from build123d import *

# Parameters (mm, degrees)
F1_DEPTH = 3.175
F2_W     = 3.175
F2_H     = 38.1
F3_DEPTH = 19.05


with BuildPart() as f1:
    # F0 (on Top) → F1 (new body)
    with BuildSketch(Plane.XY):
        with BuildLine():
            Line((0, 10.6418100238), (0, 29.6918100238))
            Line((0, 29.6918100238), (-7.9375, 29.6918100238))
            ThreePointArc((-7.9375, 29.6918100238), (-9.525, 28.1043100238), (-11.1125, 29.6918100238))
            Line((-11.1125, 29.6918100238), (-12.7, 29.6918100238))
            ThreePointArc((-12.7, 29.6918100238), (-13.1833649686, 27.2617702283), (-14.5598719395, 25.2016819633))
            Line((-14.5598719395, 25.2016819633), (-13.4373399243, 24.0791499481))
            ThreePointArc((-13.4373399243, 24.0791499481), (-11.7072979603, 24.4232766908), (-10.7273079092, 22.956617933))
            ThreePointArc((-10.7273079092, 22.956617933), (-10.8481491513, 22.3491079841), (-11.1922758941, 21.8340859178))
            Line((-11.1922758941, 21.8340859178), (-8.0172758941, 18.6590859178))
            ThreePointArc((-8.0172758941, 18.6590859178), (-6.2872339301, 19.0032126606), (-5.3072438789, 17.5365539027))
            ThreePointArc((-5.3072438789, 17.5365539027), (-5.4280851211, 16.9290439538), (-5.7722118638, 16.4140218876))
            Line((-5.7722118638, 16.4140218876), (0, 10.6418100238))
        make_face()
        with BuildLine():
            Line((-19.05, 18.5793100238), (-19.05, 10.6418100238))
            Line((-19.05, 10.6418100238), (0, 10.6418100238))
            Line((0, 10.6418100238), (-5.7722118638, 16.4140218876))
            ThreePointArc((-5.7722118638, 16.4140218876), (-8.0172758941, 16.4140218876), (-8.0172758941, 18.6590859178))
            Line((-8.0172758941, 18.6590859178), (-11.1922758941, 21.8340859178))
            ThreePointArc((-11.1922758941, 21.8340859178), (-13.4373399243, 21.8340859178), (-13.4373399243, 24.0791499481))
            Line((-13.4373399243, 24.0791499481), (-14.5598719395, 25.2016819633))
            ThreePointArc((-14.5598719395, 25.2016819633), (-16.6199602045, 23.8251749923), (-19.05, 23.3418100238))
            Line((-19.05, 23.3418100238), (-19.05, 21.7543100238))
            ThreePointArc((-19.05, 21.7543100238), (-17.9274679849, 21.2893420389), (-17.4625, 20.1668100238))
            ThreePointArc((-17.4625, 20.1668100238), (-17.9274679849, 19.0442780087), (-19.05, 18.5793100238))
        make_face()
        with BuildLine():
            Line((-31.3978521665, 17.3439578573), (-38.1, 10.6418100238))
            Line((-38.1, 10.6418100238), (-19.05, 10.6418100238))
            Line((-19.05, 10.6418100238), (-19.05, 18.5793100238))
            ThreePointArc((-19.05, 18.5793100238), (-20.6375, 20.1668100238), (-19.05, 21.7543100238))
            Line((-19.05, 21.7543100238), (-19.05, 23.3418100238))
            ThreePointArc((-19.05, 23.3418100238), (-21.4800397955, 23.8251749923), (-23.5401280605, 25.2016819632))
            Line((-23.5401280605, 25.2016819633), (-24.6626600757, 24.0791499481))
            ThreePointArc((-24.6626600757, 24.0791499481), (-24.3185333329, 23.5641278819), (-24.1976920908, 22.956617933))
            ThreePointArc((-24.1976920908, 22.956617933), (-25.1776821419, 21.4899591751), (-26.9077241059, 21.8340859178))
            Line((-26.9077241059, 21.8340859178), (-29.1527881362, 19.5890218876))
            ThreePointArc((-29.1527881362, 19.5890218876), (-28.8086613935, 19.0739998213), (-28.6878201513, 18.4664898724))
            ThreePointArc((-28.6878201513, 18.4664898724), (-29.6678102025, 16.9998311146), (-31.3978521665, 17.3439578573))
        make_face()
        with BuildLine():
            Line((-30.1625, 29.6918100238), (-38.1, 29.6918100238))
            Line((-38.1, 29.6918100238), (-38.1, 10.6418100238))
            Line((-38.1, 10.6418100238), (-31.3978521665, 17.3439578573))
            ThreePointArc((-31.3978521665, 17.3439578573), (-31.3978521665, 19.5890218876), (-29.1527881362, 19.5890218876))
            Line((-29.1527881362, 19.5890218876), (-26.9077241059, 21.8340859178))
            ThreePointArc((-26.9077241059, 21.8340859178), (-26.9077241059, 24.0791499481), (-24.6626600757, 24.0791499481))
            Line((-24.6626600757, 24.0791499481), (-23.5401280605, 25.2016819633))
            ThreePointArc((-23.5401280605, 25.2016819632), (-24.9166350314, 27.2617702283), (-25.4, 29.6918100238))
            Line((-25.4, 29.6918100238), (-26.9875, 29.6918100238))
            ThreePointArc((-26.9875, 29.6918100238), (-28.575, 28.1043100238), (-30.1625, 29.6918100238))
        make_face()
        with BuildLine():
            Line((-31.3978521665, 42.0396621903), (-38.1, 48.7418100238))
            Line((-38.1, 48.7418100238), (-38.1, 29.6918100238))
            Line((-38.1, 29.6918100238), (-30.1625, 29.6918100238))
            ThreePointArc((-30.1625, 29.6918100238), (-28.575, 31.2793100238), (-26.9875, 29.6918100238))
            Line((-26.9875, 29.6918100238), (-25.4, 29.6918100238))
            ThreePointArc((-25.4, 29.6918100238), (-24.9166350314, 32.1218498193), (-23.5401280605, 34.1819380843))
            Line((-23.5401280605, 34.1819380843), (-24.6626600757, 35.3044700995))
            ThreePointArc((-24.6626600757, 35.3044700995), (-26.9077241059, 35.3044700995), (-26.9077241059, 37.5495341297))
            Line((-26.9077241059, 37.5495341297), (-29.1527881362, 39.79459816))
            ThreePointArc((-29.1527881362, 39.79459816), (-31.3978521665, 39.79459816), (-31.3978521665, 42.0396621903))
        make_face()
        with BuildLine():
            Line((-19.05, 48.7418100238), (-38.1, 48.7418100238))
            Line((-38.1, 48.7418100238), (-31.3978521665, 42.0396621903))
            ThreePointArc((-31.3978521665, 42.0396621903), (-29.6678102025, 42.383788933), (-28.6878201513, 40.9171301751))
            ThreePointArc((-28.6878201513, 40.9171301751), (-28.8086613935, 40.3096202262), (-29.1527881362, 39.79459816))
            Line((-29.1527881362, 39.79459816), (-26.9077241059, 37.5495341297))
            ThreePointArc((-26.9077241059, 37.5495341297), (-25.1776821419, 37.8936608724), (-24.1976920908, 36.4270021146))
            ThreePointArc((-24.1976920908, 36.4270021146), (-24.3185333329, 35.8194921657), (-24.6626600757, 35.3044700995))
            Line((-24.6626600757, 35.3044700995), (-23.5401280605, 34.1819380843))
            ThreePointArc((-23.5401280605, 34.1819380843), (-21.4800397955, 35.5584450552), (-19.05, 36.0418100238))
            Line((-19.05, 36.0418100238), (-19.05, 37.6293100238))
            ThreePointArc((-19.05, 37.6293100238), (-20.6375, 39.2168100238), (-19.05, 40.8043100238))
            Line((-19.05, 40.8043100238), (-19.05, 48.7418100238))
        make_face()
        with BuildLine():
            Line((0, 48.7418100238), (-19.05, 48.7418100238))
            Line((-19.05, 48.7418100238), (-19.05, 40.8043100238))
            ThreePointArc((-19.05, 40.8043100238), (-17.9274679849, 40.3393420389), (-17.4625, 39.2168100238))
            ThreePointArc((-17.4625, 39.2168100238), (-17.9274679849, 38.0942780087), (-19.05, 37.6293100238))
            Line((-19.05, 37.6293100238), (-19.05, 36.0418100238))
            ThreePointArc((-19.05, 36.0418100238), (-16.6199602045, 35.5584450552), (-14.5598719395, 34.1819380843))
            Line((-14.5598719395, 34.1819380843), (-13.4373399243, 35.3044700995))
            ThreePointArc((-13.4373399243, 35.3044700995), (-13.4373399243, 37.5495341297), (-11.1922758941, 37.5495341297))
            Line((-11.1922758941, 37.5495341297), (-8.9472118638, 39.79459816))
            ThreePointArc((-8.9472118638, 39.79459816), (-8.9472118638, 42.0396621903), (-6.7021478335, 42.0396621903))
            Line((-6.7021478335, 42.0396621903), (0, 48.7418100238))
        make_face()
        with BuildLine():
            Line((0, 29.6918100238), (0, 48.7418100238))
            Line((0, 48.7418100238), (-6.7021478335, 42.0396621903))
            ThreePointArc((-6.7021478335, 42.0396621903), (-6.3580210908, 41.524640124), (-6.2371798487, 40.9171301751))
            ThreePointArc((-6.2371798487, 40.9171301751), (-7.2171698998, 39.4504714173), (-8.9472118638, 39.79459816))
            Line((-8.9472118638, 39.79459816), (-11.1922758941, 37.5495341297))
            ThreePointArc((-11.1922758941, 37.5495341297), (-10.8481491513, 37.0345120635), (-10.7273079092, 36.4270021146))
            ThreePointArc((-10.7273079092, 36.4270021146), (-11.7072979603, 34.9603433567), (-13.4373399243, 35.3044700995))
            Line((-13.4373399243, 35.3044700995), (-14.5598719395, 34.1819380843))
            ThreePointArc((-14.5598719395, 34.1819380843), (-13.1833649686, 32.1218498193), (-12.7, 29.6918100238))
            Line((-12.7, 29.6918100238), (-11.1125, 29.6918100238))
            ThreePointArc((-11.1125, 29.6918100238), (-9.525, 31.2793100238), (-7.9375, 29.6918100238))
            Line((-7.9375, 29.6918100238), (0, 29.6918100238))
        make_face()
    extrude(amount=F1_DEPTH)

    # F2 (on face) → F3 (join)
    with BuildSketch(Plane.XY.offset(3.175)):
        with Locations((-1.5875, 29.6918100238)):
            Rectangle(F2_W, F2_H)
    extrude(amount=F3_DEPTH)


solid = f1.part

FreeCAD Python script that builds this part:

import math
import FreeCAD as App
import Part
import Sketcher

V = App.Vector
Q = App.Units.Quantity


def add_polygon(sketch, points):
    """Adds a closed chain of lines whose ends are joined by coincident constraints."""
    first, n = sketch.GeometryCount, len(points)
    for a, b in zip(points, points[1:] + points[:1]):
        sketch.addGeometry(Part.LineSegment(App.Vector(*a, 0), App.Vector(*b, 0)), False)
    for i in range(n):
        sketch.addConstraint(Sketcher.Constraint("Coincident", first + i, 2, first + (i + 1) % n, 1))

doc = App.newDocument("Part")
params = doc.addObject("Spreadsheet::Sheet", "Params")
for row, (alias, value) in enumerate([
    ("sketch1_radius", "0.25 in"),
    ("sketch1_diameter", "0.125 in"),
    ("sketch1_width", "1.5 in"),
    ("pad1_length", "0.125 in"),
    ("sketch2_height", "1.5 in"),
    ("sketch2_width", "0.125 in"),
    ("pad2_length", "0.75 in"),
], start=1):
    params.set(f"A{row}", alias)
    params.set(f"B{row}", "=" + value)
    params.setAlias(f"B{row}", alias)

body = doc.addObject("PartDesign::Body", "Body")

# Sketch on XY plane
sketch1 = body.newObject("Sketcher::SketchObject", "Sketch")
sketch1.AttachmentSupport = (doc.getObject("XY_Plane"), [""])
sketch1.MapMode = "FlatFace"
add_polygon(sketch1, [(0, 10.64181), (0, 48.74181), (-38.1, 48.74181), (-38.1, 10.64181)])  # lines 0-3
sketch1.addGeometry(Part.Circle(V(-9.525, 29.69181, 0), V(0, 0, 1), 1.5875), False)  # 4
sketch1.addGeometry(Part.ArcOfCircle(Part.Circle(V(-19.05, 29.69181, 0), V(0, 0, 1), 6.35), math.radians(-45), math.radians(0)), False)  # 5
sketch1.addGeometry(Part.ArcOfCircle(Part.Circle(V(-19.05, 29.69181, 0), V(0, 0, 1), 6.35), math.radians(-90), math.radians(-45)), False)  # 6
sketch1.addGeometry(Part.ArcOfCircle(Part.Circle(V(-19.05, 29.69181, 0), V(0, 0, 1), 6.35), math.radians(-135), math.radians(-90)), False)  # 7
sketch1.addGeometry(Part.ArcOfCircle(Part.Circle(V(-19.05, 29.69181, 0), V(0, 0, 1), 6.35), math.radians(180), math.radians(225)), False)  # 8
sketch1.addGeometry(Part.ArcOfCircle(Part.Circle(V(-19.05, 29.69181, 0), V(0, 0, 1), 6.35), math.radians(135), math.radians(180)), False)  # 9
sketch1.addGeometry(Part.ArcOfCircle(Part.Circle(V(-19.05, 29.69181, 0), V(0, 0, 1), 6.35), math.radians(90), math.radians(135)), False)  # 10
sketch1.addGeometry(Part.ArcOfCircle(Part.Circle(V(-19.05, 29.69181, 0), V(0, 0, 1), 6.35), math.radians(45), math.radians(90)), False)  # 11
sketch1.addGeometry(Part.ArcOfCircle(Part.Circle(V(-19.05, 29.69181, 0), V(0, 0, 1), 6.35), math.radians(0), math.radians(45)), False)  # 12
sketch1.addGeometry(Part.ArcOfCircle(Part.Circle(V(-12.314808, 36.427002, 0), V(0, 0, 1), 1.5875), math.radians(45), math.radians(225)), False)  # 13
sketch1.addGeometry(Part.ArcOfCircle(Part.Circle(V(-12.314808, 36.427002, 0), V(0, 0, 1), 1.5875), math.radians(0), math.radians(45)), False)  # 14
sketch1.addGeometry(Part.ArcOfCircle(Part.Circle(V(-12.314808, 36.427002, 0), V(0, 0, 1), 1.5875), math.radians(-135), math.radians(0)), False)  # 15
sketch1.addGeometry(Part.ArcOfCircle(Part.Circle(V(-7.82468, 40.91713, 0), V(0, 0, 1), 1.5875), math.radians(45), math.radians(225)), False)  # 16
sketch1.addGeometry(Part.ArcOfCircle(Part.Circle(V(-7.82468, 40.91713, 0), V(0, 0, 1), 1.5875), math.radians(0), math.radians(45)), False)  # 17
sketch1.addGeometry(Part.ArcOfCircle(Part.Circle(V(-7.82468, 40.91713, 0), V(0, 0, 1), 1.5875), math.radians(-135), math.radians(0)), False)  # 18
sketch1.addGeometry(Part.ArcOfCircle(Part.Circle(V(-19.05, 39.21681, 0), V(0, 0, 1), 1.5875), math.radians(90), math.radians(270)), False)  # 19
sketch1.addGeometry(Part.ArcOfCircle(Part.Circle(V(-19.05, 39.21681, 0), V(0, 0, 1), 1.5875), math.radians(0), math.radians(90)), False)  # 20
sketch1.addGeometry(Part.ArcOfCircle(Part.Circle(V(-19.05, 39.21681, 0), V(0, 0, 1), 1.5875), math.radians(-90), math.radians(0)), False)  # 21
sketch1.addGeometry(Part.ArcOfCircle(Part.Circle(V(-25.785192, 36.427002, 0), V(0, 0, 1), 1.5875), math.radians(135), math.radians(315)), False)  # 22
sketch1.addGeometry(Part.ArcOfCircle(Part.Circle(V(-25.785192, 36.427002, 0), V(0, 0, 1), 1.5875), math.radians(0), math.radians(135)), False)  # 23
sketch1.addGeometry(Part.ArcOfCircle(Part.Circle(V(-25.785192, 36.427002, 0), V(0, 0, 1), 1.5875), math.radians(-45), math.radians(0)), False)  # 24
sketch1.addGeometry(Part.ArcOfCircle(Part.Circle(V(-30.27532, 40.91713, 0), V(0, 0, 1), 1.5875), math.radians(135), math.radians(315)), False)  # 25
sketch1.addGeometry(Part.ArcOfCircle(Part.Circle(V(-30.27532, 40.91713, 0), V(0, 0, 1), 1.5875), math.radians(0), math.radians(135)), False)  # 26
sketch1.addGeometry(Part.ArcOfCircle(Part.Circle(V(-30.27532, 40.91713, 0), V(0, 0, 1), 1.5875), math.radians(-45), math.radians(0)), False)  # 27
sketch1.addGeometry(Part.Circle(V(-28.575, 29.69181, 0), V(0, 0, 1), 1.5875), False)  # 28
sketch1.addGeometry(Part.ArcOfCircle(Part.Circle(V(-25.785192, 22.956618, 0), V(0, 0, 1), 1.5875), math.radians(0), math.radians(45)), False)  # 29
sketch1.addGeometry(Part.ArcOfCircle(Part.Circle(V(-25.785192, 22.956618, 0), V(0, 0, 1), 1.5875), math.radians(-135), math.radians(0)), False)  # 30
sketch1.addGeometry(Part.ArcOfCircle(Part.Circle(V(-25.785192, 22.956618, 0), V(0, 0, 1), 1.5875), math.radians(45), math.radians(225)), False)  # 31
sketch1.addGeometry(Part.ArcOfCircle(Part.Circle(V(-30.27532, 18.46649, 0), V(0, 0, 1), 1.5875), math.radians(0), math.radians(45)), False)  # 32
sketch1.addGeometry(Part.ArcOfCircle(Part.Circle(V(-30.27532, 18.46649, 0), V(0, 0, 1), 1.5875), math.radians(-135), math.radians(0)), False)  # 33
sketch1.addGeometry(Part.ArcOfCircle(Part.Circle(V(-30.27532, 18.46649, 0), V(0, 0, 1), 1.5875), math.radians(45), math.radians(225)), False)  # 34
sketch1.addGeometry(Part.ArcOfCircle(Part.Circle(V(-19.05, 20.16681, 0), V(0, 0, 1), 1.5875), math.radians(0), math.radians(90)), False)  # 35
sketch1.addGeometry(Part.ArcOfCircle(Part.Circle(V(-19.05, 20.16681, 0), V(0, 0, 1), 1.5875), math.radians(-90), math.radians(0)), False)  # 36
sketch1.addGeometry(Part.ArcOfCircle(Part.Circle(V(-19.05, 20.16681, 0), V(0, 0, 1), 1.5875), math.radians(90), math.radians(270)), False)  # 37
sketch1.addGeometry(Part.ArcOfCircle(Part.Circle(V(-12.314808, 22.956618, 0), V(0, 0, 1), 1.5875), math.radians(0), math.radians(135)), False)  # 38
sketch1.addGeometry(Part.ArcOfCircle(Part.Circle(V(-12.314808, 22.956618, 0), V(0, 0, 1), 1.5875), math.radians(-45), math.radians(0)), False)  # 39
sketch1.addGeometry(Part.ArcOfCircle(Part.Circle(V(-12.314808, 22.956618, 0), V(0, 0, 1), 1.5875), math.radians(135), math.radians(315)), False)  # 40
sketch1.addGeometry(Part.ArcOfCircle(Part.Circle(V(-6.894744, 17.536554, 0), V(0, 0, 1), 1.5875), math.radians(0), math.radians(135)), False)  # 41
sketch1.addGeometry(Part.ArcOfCircle(Part.Circle(V(-6.894744, 17.536554, 0), V(0, 0, 1), 1.5875), math.radians(-45), math.radians(0)), False)  # 42
sketch1.addGeometry(Part.ArcOfCircle(Part.Circle(V(-6.894744, 17.536554, 0), V(0, 0, 1), 1.5875), math.radians(135), math.radians(315)), False)  # 43
sketch1.addConstraint(Sketcher.Constraint("Tangent", 5, 1, 6, 2))
sketch1.addConstraint(Sketcher.Constraint("Tangent", 6, 1, 7, 2))
sketch1.addConstraint(Sketcher.Constraint("Tangent", 7, 1, 8, 2))
sketch1.addConstraint(Sketcher.Constraint("Tangent", 8, 1, 9, 2))
sketch1.addConstraint(Sketcher.Constraint("Tangent", 9, 1, 10, 2))
sketch1.addConstraint(Sketcher.Constraint("Tangent", 10, 1, 11, 2))
sketch1.addConstraint(Sketcher.Constraint("Tangent", 11, 1, 12, 2))
sketch1.addConstraint(Sketcher.Constraint("Tangent", 12, 1, 5, 2))
sketch1.addConstraint(Sketcher.Constraint("Tangent", 13, 1, 14, 2))
sketch1.addConstraint(Sketcher.Constraint("Tangent", 14, 1, 15, 2))
sketch1.addConstraint(Sketcher.Constraint("Tangent", 15, 1, 13, 2))
sketch1.addConstraint(Sketcher.Constraint("Tangent", 16, 1, 17, 2))
sketch1.addConstraint(Sketcher.Constraint("Tangent", 17, 1, 18, 2))
sketch1.addConstraint(Sketcher.Constraint("Tangent", 18, 1, 16, 2))
sketch1.addConstraint(Sketcher.Constraint("Tangent", 19, 1, 20, 2))
sketch1.addConstraint(Sketcher.Constraint("Tangent", 20, 1, 21, 2))
sketch1.addConstraint(Sketcher.Constraint("Tangent", 21, 1, 19, 2))
sketch1.addConstraint(Sketcher.Constraint("Tangent", 22, 1, 23, 2))
sketch1.addConstraint(Sketcher.Constraint("Tangent", 23, 1, 24, 2))
sketch1.addConstraint(Sketcher.Constraint("Tangent", 24, 1, 22, 2))
sketch1.addConstraint(Sketcher.Constraint("Tangent", 25, 1, 26, 2))
sketch1.addConstraint(Sketcher.Constraint("Tangent", 26, 1, 27, 2))
sketch1.addConstraint(Sketcher.Constraint("Tangent", 27, 1, 25, 2))
sketch1.addConstraint(Sketcher.Constraint("Tangent", 29, 1, 30, 2))
sketch1.addConstraint(Sketcher.Constraint("Tangent", 30, 1, 31, 2))
sketch1.addConstraint(Sketcher.Constraint("Tangent", 31, 1, 29, 2))
sketch1.addConstraint(Sketcher.Constraint("Tangent", 32, 1, 33, 2))
sketch1.addConstraint(Sketcher.Constraint("Tangent", 33, 1, 34, 2))
sketch1.addConstraint(Sketcher.Constraint("Tangent", 34, 1, 32, 2))
sketch1.addConstraint(Sketcher.Constraint("Tangent", 35, 1, 36, 2))
sketch1.addConstraint(Sketcher.Constraint("Tangent", 36, 1, 37, 2))
sketch1.addConstraint(Sketcher.Constraint("Tangent", 37, 1, 35, 2))
sketch1.addConstraint(Sketcher.Constraint("Tangent", 38, 1, 39, 2))
sketch1.addConstraint(Sketcher.Constraint("Tangent", 39, 1, 40, 2))
sketch1.addConstraint(Sketcher.Constraint("Tangent", 40, 1, 38, 2))
sketch1.addConstraint(Sketcher.Constraint("Tangent", 41, 1, 42, 2))
sketch1.addConstraint(Sketcher.Constraint("Tangent", 42, 1, 43, 2))
sketch1.addConstraint(Sketcher.Constraint("Tangent", 43, 1, 41, 2))
sketch1.addConstraint(Sketcher.Constraint("Vertical", 0))
sketch1.addConstraint(Sketcher.Constraint("Horizontal", 1))
sketch1.addConstraint(Sketcher.Constraint("Vertical", 2))
sketch1.addConstraint(Sketcher.Constraint("Horizontal", 3))
sketch1.addConstraint(Sketcher.Constraint("Coincident", 7, 3, 5, 3))
sketch1.addConstraint(Sketcher.Constraint("Coincident", 9, 3, 5, 3))
sketch1.addConstraint(Sketcher.Constraint("Equal", 9, 10))
sketch1.addConstraint(Sketcher.Constraint("Equal", 4, 13))
sketch1.addConstraint(Sketcher.Constraint("Equal", 15, 16))
sketch1.addConstraint(Sketcher.Constraint("Equal", 18, 19))
sketch1.addConstraint(Sketcher.Constraint("Equal", 21, 22))
sketch1.addConstraint(Sketcher.Constraint("Equal", 24, 25))
sketch1.addConstraint(Sketcher.Constraint("Equal", 27, 28))
sketch1.addConstraint(Sketcher.Constraint("Equal", 28, 29))
sketch1.addConstraint(Sketcher.Constraint("Equal", 31, 32))
sketch1.addConstraint(Sketcher.Constraint("Equal", 34, 35))
sketch1.addConstraint(Sketcher.Constraint("Equal", 37, 38))
sketch1.addConstraint(Sketcher.Constraint("Equal", 40, 41))
sketch1.addConstraint(Sketcher.Constraint("PointOnObject", 0, 2, -2))
sketch1.addConstraint(Sketcher.Constraint("Horizontal", 4, 3, 5, 3))
sketch1.addConstraint(Sketcher.Constraint("Horizontal", 15, 3, 22, 3))
sketch1.addConstraint(Sketcher.Constraint("Horizontal", 18, 3, 25, 3))
sketch1.addConstraint(Sketcher.Constraint("Horizontal", 12, 3, 28, 3))
sketch1.addConstraint(Sketcher.Constraint("Horizontal", 31, 3, 38, 3))
sketch1.addConstraint(Sketcher.Constraint("Horizontal", 5, 1, 7, 1))
sketch1.addConstraint(Sketcher.Constraint("Horizontal", 28, 3, 8, 1))
sketch1.addConstraint(Sketcher.Constraint("Horizontal", 9, 1, 11, 1))
sketch1.addConstraint(Sketcher.Constraint("Horizontal", 8, 1, 12, 1))
sketch1.addConstraint(Sketcher.Constraint("Horizontal", 24, 3, 14, 1))
sketch1.addConstraint(Sketcher.Constraint("Horizontal", 27, 3, 17, 1))
sketch1.addConstraint(Sketcher.Constraint("Horizontal", 21, 3, 20, 1))
sketch1.addConstraint(Sketcher.Constraint("Horizontal", 13, 1, 22, 1))
sketch1.addConstraint(Sketcher.Constraint("Horizontal", 14, 1, 23, 1))
sketch1.addConstraint(Sketcher.Constraint("Horizontal", 15, 1, 24, 1))
sketch1.addConstraint(Sketcher.Constraint("Horizontal", 16, 1, 25, 1))
sketch1.addConstraint(Sketcher.Constraint("Horizontal", 17, 1, 26, 1))
sketch1.addConstraint(Sketcher.Constraint("Horizontal", 18, 1, 27, 1))
sketch1.addConstraint(Sketcher.Constraint("Horizontal", 40, 3, 29, 1))
sketch1.addConstraint(Sketcher.Constraint("Horizontal", 34, 3, 32, 1))
sketch1.addConstraint(Sketcher.Constraint("Horizontal", 37, 3, 35, 1))
sketch1.addConstraint(Sketcher.Constraint("Horizontal", 29, 1, 38, 1))
sketch1.addConstraint(Sketcher.Constraint("Horizontal", 30, 1, 39, 1))
sketch1.addConstraint(Sketcher.Constraint("Horizontal", 31, 1, 40, 1))
sketch1.addConstraint(Sketcher.Constraint("Horizontal", 43, 3, 41, 1))
sketch1.addConstraint(Sketcher.Constraint("Vertical", 12, 3, 19, 3))
sketch1.addConstraint(Sketcher.Constraint("Vertical", 24, 3, 29, 3))
sketch1.addConstraint(Sketcher.Constraint("Vertical", 27, 3, 32, 3))
sketch1.addConstraint(Sketcher.Constraint("Vertical", 21, 3, 35, 3))
sketch1.addConstraint(Sketcher.Constraint("Vertical", 15, 3, 38, 3))
sketch1.addConstraint(Sketcher.Constraint("Vertical", 37, 3, 6, 1))
sketch1.addConstraint(Sketcher.Constraint("Vertical", 7, 1, 9, 1))
sketch1.addConstraint(Sketcher.Constraint("Vertical", 6, 1, 10, 1))
sketch1.addConstraint(Sketcher.Constraint("Vertical", 10, 1, 19, 1))
sketch1.addConstraint(Sketcher.Constraint("Vertical", 19, 1, 21, 1))
sketch1.addConstraint(Sketcher.Constraint("Vertical", 22, 1, 30, 1))
sketch1.addConstraint(Sketcher.Constraint("Vertical", 24, 1, 31, 1))
sketch1.addConstraint(Sketcher.Constraint("Vertical", 25, 1, 33, 1))
sketch1.addConstraint(Sketcher.Constraint("Vertical", 27, 1, 34, 1))
sketch1.addConstraint(Sketcher.Constraint("Vertical", 21, 1, 36, 1))
sketch1.addConstraint(Sketcher.Constraint("Vertical", 36, 1, 37, 1))
sketch1.addConstraint(Sketcher.Constraint("Equal", 3, 0))
sketch1.addConstraint(Sketcher.Constraint("Radius", 5, Q("0.25 in")))
sketch1.addConstraint(Sketcher.Constraint("Diameter", 4, Q("0.125 in")))
sketch1.addConstraint(Sketcher.Constraint("DistanceX", 1, 2, 1, 1, Q("1.5 in")))
sketch1.addConstraint(Sketcher.Constraint("DistanceX", 8, 1, -1, 1, Q("1 in")))
sketch1.addConstraint(Sketcher.Constraint("DistanceX", 4, 3, -1, 1, Q("0.375 in")))
sketch1.addConstraint(Sketcher.Constraint("DistanceX", 28, 3, -1, 1, Q("1.125 in")))
sketch1.addConstraint(Sketcher.Constraint("DistanceY", -1, 1, 18, 1, Q("39.794598 mm")))
sketch1.addConstraint(Sketcher.Constraint("DistanceY", -1, 1, 4, 3, Q("29.69181 mm")))
sketch1.addConstraint(Sketcher.Constraint("DistanceX", 16, 3, -1, 1, Q("7.82468 mm")))
sketch1.addConstraint(Sketcher.Constraint("DistanceY", -1, 1, 16, 3, Q("40.91713 mm")))
sketch1.addConstraint(Sketcher.Constraint("DistanceY", -1, 1, 19, 3, Q("39.21681 mm")))
sketch1.addConstraint(Sketcher.Constraint("DistanceX", 25, 3, -1, 1, Q("30.27532 mm")))
sketch1.addConstraint(Sketcher.Constraint("DistanceY", -1, 1, 32, 3, Q("18.46649 mm")))
sketch1.addConstraint(Sketcher.Constraint("DistanceY", -1, 1, 35, 3, Q("20.16681 mm")))
sketch1.addConstraint(Sketcher.Constraint("DistanceY", -1, 1, 0, 2, Q("48.74181 mm")))
sketch1.addConstraint(Sketcher.Constraint("DistanceX", 5, 1, -1, 1, Q("14.559872 mm")))
sketch1.addConstraint(Sketcher.Constraint("DistanceX", 15, 1, -1, 1, Q("13.43734 mm")))
sketch1.addConstraint(Sketcher.Constraint("DistanceY", -1, 1, 15, 1, Q("35.30447 mm")))
sketch1.addConstraint(Sketcher.Constraint("DistanceX", 24, 1, -1, 1, Q("24.66266 mm")))
sketch1.addConstraint(Sketcher.Constraint("DistanceY", -1, 1, 31, 1, Q("24.07915 mm")))
sketch1.addConstraint(Sketcher.Constraint("DistanceX", 42, 1, -1, 1, Q("5.772212 mm")))
sketch1.addConstraint(Sketcher.Constraint("DistanceY", -1, 1, 42, 1, Q("16.414022 mm")))
sketch1.addConstraint(Sketcher.Constraint("DistanceX", 13, 3, -1, 1, Q("12.314808 mm")))
sketch1.addConstraint(Sketcher.Constraint("DistanceX", 41, 3, -1, 1, Q("6.894744 mm")))
sketch1.addConstraint(Sketcher.Constraint("DistanceX", 13, 1, -1, 1, Q("11.192276 mm")))
sketch1.addConstraint(Sketcher.Constraint("DistanceX", 16, 1, -1, 1, Q("6.702148 mm")))
sketch1.addConstraint(Sketcher.Constraint("DistanceX", 43, 1, -1, 1, Q("8.017276 mm")))
sketch1.setExpression("Constraints[103]", "Params.sketch1_radius")
sketch1.setExpression("Constraints[104]", "Params.sketch1_diameter")
sketch1.setExpression("Constraints[105]", "Params.sketch1_width")
pad1 = body.newObject("PartDesign::Pad", "Pad")
pad1.Profile = sketch1
pad1.setExpression("Length", "Params.pad1_length")

# Sketch on XY plane
sketch2 = body.newObject("Sketcher::SketchObject", "Sketch001")
sketch2.AttachmentSupport = (doc.getObject("XY_Plane"), [""])
sketch2.MapMode = "FlatFace"
sketch2.AttachmentOffset = App.Placement(V(0, 0, 0.125 * 25.4), App.Rotation())
add_polygon(sketch2, [(-3.175, 48.74181), (-3.175, 10.64181), (0, 10.64181), (0, 48.74181)])  # lines 0-3
sketch2.addConstraint(Sketcher.Constraint("Vertical", 0))
sketch2.addConstraint(Sketcher.Constraint("Horizontal", 1))
sketch2.addConstraint(Sketcher.Constraint("Vertical", 2))
sketch2.addConstraint(Sketcher.Constraint("Horizontal", 3))
sketch2.addConstraint(Sketcher.Constraint("PointOnObject", 1, 2, -2))
sketch2.addConstraint(Sketcher.Constraint("DistanceY", 0, 2, 0, 1, Q("1.5 in")))
sketch2.addConstraint(Sketcher.Constraint("DistanceX", 1, 1, 1, 2, Q("0.125 in")))
sketch2.addConstraint(Sketcher.Constraint("DistanceY", -1, 1, 0, 2, Q("10.64181 mm")))
sketch2.setExpression("Constraints[9]", "Params.sketch2_height")
sketch2.setExpression("Constraints[10]", "Params.sketch2_width")
pad2 = body.newObject("PartDesign::Pad", "Pad001")
pad2.Profile = sketch2
pad2.setExpression("Length", "Params.pad2_length")

doc.recompute()
